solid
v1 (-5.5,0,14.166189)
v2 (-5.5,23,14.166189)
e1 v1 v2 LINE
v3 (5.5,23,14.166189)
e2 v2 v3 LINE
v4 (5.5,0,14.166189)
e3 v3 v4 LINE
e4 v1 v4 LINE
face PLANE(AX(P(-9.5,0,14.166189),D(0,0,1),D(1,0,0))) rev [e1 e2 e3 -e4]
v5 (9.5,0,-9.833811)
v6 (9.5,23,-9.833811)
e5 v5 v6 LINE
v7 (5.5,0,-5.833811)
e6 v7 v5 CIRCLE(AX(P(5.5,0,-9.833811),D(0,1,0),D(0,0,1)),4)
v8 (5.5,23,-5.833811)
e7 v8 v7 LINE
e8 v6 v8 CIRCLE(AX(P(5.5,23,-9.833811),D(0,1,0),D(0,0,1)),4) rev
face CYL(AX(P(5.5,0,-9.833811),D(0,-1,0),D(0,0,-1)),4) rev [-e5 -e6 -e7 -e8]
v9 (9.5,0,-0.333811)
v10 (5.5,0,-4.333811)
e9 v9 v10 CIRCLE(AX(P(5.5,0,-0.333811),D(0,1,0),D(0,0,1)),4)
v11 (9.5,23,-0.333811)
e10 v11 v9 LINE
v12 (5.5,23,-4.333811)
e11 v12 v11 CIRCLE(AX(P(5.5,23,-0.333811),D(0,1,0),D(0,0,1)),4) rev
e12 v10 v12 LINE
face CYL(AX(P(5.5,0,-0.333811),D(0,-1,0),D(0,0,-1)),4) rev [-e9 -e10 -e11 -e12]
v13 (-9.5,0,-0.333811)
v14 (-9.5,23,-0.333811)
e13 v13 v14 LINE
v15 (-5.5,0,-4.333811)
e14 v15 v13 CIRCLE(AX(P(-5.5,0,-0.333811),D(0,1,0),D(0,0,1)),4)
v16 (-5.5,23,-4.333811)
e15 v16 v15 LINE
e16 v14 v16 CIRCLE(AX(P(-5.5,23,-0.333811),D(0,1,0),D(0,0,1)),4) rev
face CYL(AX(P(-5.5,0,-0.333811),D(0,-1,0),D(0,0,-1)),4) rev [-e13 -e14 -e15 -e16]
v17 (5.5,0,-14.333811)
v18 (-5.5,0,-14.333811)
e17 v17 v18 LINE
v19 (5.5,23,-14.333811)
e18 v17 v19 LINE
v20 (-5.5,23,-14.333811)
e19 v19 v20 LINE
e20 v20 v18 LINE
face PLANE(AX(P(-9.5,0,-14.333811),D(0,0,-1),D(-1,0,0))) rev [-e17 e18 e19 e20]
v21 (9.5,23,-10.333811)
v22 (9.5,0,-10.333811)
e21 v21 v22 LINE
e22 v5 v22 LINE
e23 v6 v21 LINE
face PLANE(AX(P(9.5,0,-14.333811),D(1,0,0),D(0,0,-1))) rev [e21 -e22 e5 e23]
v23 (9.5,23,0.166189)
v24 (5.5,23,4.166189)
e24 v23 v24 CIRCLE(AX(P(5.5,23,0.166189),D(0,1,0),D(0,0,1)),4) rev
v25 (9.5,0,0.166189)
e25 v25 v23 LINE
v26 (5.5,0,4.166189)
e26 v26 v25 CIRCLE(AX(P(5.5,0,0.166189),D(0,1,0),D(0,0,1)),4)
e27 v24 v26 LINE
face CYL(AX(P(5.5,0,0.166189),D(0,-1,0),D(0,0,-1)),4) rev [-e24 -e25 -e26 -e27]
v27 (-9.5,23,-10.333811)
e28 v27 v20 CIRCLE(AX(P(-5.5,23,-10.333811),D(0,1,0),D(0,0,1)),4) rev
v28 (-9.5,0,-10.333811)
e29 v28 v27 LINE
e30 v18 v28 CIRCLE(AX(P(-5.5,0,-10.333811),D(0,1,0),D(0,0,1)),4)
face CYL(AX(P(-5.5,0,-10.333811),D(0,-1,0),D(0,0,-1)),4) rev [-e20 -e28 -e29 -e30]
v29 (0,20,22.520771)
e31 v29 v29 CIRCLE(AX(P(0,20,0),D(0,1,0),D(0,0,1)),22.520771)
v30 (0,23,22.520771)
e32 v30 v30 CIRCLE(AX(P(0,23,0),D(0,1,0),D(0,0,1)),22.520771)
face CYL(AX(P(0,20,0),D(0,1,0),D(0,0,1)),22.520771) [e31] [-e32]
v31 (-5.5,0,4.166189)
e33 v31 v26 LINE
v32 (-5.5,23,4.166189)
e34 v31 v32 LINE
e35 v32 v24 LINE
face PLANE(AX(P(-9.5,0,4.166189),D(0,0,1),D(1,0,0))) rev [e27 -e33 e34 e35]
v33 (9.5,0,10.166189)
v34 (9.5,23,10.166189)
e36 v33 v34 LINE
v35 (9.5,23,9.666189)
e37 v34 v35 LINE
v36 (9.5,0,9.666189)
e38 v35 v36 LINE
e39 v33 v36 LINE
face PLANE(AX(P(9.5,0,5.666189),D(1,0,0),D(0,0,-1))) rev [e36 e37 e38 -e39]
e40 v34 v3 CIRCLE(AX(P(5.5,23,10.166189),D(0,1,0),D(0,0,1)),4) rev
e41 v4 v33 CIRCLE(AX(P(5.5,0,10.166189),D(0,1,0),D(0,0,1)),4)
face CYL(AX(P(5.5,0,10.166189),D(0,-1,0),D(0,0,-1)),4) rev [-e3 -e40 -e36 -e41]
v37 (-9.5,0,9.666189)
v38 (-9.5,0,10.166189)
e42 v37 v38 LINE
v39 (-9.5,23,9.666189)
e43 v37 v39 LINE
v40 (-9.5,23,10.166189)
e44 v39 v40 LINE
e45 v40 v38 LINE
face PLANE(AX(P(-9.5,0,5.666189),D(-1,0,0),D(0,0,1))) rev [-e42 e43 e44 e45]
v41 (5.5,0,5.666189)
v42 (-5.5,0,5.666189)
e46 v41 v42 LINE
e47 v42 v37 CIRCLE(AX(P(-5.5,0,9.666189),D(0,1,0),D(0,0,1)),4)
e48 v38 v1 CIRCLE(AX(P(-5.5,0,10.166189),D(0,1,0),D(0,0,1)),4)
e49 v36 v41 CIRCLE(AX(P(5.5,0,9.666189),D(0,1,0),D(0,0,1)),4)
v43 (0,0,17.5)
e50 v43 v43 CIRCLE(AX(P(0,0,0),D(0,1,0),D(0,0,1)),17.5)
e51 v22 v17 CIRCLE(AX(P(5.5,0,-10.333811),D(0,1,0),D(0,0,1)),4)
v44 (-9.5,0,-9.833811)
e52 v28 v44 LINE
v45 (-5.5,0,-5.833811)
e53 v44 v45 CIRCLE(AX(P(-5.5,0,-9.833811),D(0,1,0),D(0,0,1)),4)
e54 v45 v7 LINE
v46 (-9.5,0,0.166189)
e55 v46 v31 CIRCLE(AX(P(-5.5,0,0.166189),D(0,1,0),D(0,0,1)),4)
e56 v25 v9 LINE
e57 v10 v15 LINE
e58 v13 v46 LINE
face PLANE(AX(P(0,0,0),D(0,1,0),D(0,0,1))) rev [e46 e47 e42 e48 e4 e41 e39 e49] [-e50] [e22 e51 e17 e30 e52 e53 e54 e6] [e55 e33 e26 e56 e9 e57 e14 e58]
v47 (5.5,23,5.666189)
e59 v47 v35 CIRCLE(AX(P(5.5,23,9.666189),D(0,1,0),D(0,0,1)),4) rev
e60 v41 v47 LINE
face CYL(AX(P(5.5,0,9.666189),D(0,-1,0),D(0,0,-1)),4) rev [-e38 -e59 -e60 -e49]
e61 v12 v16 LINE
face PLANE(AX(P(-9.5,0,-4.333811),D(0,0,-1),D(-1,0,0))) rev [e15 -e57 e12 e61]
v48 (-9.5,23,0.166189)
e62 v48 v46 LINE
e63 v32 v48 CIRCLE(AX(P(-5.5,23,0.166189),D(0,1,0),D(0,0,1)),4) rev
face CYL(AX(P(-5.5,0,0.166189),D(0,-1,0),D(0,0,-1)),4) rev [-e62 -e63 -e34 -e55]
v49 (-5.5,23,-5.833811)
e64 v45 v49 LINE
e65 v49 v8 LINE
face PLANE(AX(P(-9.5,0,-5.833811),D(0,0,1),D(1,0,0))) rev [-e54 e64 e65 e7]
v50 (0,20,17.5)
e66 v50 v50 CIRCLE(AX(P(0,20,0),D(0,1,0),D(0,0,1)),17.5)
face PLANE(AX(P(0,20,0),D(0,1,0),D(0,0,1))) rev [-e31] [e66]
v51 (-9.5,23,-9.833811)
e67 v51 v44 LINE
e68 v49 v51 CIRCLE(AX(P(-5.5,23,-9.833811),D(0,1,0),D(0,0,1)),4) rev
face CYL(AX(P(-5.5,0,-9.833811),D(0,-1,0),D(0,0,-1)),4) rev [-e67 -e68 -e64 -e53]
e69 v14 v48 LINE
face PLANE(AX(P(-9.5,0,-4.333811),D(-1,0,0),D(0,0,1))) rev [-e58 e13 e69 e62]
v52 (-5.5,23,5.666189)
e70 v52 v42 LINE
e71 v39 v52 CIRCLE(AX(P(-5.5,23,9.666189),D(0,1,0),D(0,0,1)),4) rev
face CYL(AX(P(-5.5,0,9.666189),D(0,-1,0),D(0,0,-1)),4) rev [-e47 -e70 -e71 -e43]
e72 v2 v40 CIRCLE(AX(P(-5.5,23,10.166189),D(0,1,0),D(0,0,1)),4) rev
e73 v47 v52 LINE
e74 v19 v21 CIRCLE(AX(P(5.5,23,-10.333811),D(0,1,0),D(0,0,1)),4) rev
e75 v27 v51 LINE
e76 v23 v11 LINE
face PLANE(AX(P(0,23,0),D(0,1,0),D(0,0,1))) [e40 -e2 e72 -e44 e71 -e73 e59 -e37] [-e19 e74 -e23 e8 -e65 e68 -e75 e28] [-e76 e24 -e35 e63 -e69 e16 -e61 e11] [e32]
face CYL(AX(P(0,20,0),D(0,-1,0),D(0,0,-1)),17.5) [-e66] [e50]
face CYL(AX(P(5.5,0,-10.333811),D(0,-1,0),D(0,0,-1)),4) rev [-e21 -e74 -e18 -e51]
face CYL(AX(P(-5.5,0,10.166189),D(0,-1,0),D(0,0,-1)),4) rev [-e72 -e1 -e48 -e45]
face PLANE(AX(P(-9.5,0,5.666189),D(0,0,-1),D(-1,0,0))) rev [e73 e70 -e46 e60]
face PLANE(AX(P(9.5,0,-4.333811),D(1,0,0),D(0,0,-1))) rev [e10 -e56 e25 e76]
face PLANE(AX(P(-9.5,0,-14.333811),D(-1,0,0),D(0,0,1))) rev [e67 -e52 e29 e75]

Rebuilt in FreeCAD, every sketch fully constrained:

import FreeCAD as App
import Part
import Sketcher
from FreeCAD import Vector
Q = App.Units.Quantity


def edges_at(feature, points):
    """Names of the edges that pass closest to the given points."""
    edges = feature.Shape.Edges
    near = lambda p: min(range(len(edges)), key=lambda i: edges[i].distToShape(Part.Vertex(*p))[0])
    return sorted({f"Edge{near(p) + 1}" for p in points})

doc = App.newDocument("Part")
body = doc.addObject("PartDesign::Body", "Body")

# Sketch on XZ plane
sketch1 = body.newObject("Sketcher::SketchObject", "Sketch")
sketch1.AttachmentSupport = (doc.getObject("XZ_Plane"), [""])
sketch1.MapMode = "FlatFace"
sketch1.addGeometry(Part.Circle(Vector(0, 0, 0), Vector(0, 0, 1), 18), False)
sketch1.addConstraint(Sketcher.Constraint("Coincident", 0, 3, -1, 1))
sketch1.addConstraint(Sketcher.Constraint("Diameter", 0, Q("35 mm")))
pad1 = body.newObject("PartDesign::Pad", "Pad")
pad1.Profile = sketch1
pad1.Length = 20
pad1.Reversed = True

# Sketch on XZ plane
sketch2 = body.newObject("Sketcher::SketchObject", "Sketch001")
sketch2.AttachmentSupport = (doc.getObject("XZ_Plane"), [""])
sketch2.MapMode = "FlatFace"
sketch2.AttachmentOffset = App.Placement(Vector(0, 0, -20), App.Rotation())
sketch2.addGeometry(Part.Circle(Vector(0, 0, 0), Vector(0, 0, 1), 22), False)
sketch2.addConstraint(Sketcher.Constraint("Coincident", 0, 3, -1, 1))
sketch2.addConstraint(Sketcher.Constraint("Diameter", 0, Q("43 mm")))
pad2 = body.newObject("PartDesign::Pad", "Pad001")
pad2.Profile = sketch2
pad2.Length = 3
pad2.Reversed = True

# Sketch on XZ plane
sketch3 = body.newObject("Sketcher::SketchObject", "Sketch002")
sketch3.AttachmentSupport = (doc.getObject("XZ_Plane"), [""])
sketch3.MapMode = "FlatFace"
sketch3.AttachmentOffset = App.Placement(Vector(0, 0, -23), App.Rotation())
sketch3.addGeometry(Part.LineSegment(Vector(-10, -4, 0), Vector(-10, 4, 0)), False)
sketch3.addGeometry(Part.LineSegment(Vector(-10, 4, 0), Vector(10, 4, 0)), False)
sketch3.addGeometry(Part.LineSegment(Vector(10, 4, 0), Vector(10, -4, 0)), False)
sketch3.addGeometry(Part.LineSegment(Vector(10, -4, 0), Vector(-10, -4, 0)), False)
sketch3.addGeometry(Part.LineSegment(Vector(-10, -14, 0), Vector(-10, -6, 0)), False)
sketch3.addGeometry(Part.LineSegment(Vector(-10, -6, 0), Vector(10, -6, 0)), False)
sketch3.addGeometry(Part.LineSegment(Vector(10, -6, 0), Vector(10, -14, 0)), False)
sketch3.addGeometry(Part.LineSegment(Vector(10, -14, 0), Vector(-10, -14, 0)), False)
sketch3.addGeometry(Part.LineSegment(Vector(-10, 6, 0), Vector(-10, 14, 0)), False)
sketch3.addGeometry(Part.LineSegment(Vector(-10, 14, 0), Vector(10, 14, 0)), False)
sketch3.addGeometry(Part.LineSegment(Vector(10, 14, 0), Vector(10, 6, 0)), False)
sketch3.addGeometry(Part.LineSegment(Vector(10, 6, 0), Vector(-10, 6, 0)), False)
sketch3.addConstraint(Sketcher.Constraint("Coincident", 0, 2, 1, 1))
sketch3.addConstraint(Sketcher.Constraint("Coincident", 1, 2, 2, 1))
sketch3.addConstraint(Sketcher.Constraint("Coincident", 2, 2, 3, 1))
sketch3.addConstraint(Sketcher.Constraint("Coincident", 3, 2, 0, 1))
sketch3.addConstraint(Sketcher.Constraint("Coincident", 4, 2, 5, 1))
sketch3.addConstraint(Sketcher.Constraint("Coincident", 5, 2, 6, 1))
sketch3.addConstraint(Sketcher.Constraint("Coincident", 6, 2, 7, 1))
sketch3.addConstraint(Sketcher.Constraint("Coincident", 7, 2, 4, 1))
sketch3.addConstraint(Sketcher.Constraint("Coincident", 8, 2, 9, 1))
sketch3.addConstraint(Sketcher.Constraint("Coincident", 9, 2, 10, 1))
sketch3.addConstraint(Sketcher.Constraint("Coincident", 10, 2, 11, 1))
sketch3.addConstraint(Sketcher.Constraint("Coincident", 11, 2, 8, 1))
sketch3.addConstraint(Sketcher.Constraint("Vertical", 0))
sketch3.addConstraint(Sketcher.Constraint("Horizontal", 1))
sketch3.addConstraint(Sketcher.Constraint("Vertical", 2))
sketch3.addConstraint(Sketcher.Constraint("Horizontal", 3))
sketch3.addConstraint(Sketcher.Constraint("Vertical", 4))
sketch3.addConstraint(Sketcher.Constraint("Horizontal", 5))
sketch3.addConstraint(Sketcher.Constraint("Vertical", 6))
sketch3.addConstraint(Sketcher.Constraint("Horizontal", 7))
sketch3.addConstraint(Sketcher.Constraint("Vertical", 8))
sketch3.addConstraint(Sketcher.Constraint("Horizontal", 9))
sketch3.addConstraint(Sketcher.Constraint("Vertical", 10))
sketch3.addConstraint(Sketcher.Constraint("Horizontal", 11))
sketch3.addConstraint(Sketcher.Constraint("Vertical", 3, 2, 4, 2))
sketch3.addConstraint(Sketcher.Constraint("Vertical", 2, 2, 5, 2))
sketch3.addConstraint(Sketcher.Constraint("Vertical", 7, 2, 8, 2))
sketch3.addConstraint(Sketcher.Constraint("Vertical", 6, 2, 9, 2))
sketch3.addConstraint(Sketcher.Constraint("Equal", 2, 4))
sketch3.addConstraint(Sketcher.Constraint("Equal", 6, 8))
sketch3.addConstraint(Sketcher.Constraint("DistanceX", 1, 1, 1, 2, Q("19 mm")))
sketch3.addConstraint(Sketcher.Constraint("DistanceY", 0, 1, 0, 2, Q("8.5 mm")))
sketch3.addConstraint(Sketcher.Constraint("DistanceY", 4, 2, 0, 2, Q("10 mm")))
sketch3.addConstraint(Sketcher.Constraint("DistanceY", 0, 2, 8, 2, Q("10 mm")))
sketch3.addConstraint(Sketcher.Constraint("DistanceX", 0, 2, -1, 1, Q("9.5 mm")))
sketch3.addConstraint(Sketcher.Constraint("DistanceY", -1, 1, 0, 2, Q("4.166189 mm")))
pocket1 = body.newObject("PartDesign::Pocket", "Pocket")
pocket1.Profile = sketch3
pocket1.Length = 23
pocket1.Reversed = True
doc.recompute()

fillet = body.newObject("PartDesign::Fillet", "Fillet")
fillet.Base = (pocket1, edges_at(pocket1, [
    (9.5, 11.5, 4.166),
    (-9.5, 11.5, 4.166),
    (-9.5, 11.5, -4.334),
    (9.5, 11.5, -4.334),
    (9.5, 11.5, 14.166),
    (-9.5, 11.5, 14.166),
    (-9.5, 11.5, 5.666),
    (9.5, 11.5, 5.666),
]))
fillet.Radius = 4
doc.recompute()

fillet2 = body.newObject("PartDesign::Fillet", "Fillet001")
fillet2.Base = (fillet, edges_at(fillet, [
    (9.5, 11.5, -14.334),
    (9.5, 11.5, -5.834),
    (-9.5, 11.5, -5.834),
    (-9.5, 11.5, -14.334),
]))
fillet2.Radius = 4

# Sketch on XZ plane
sketch4 = body.newObject("Sketcher::SketchObject", "Sketch003")
sketch4.AttachmentSupport = (doc.getObject("XZ_Plane"), [""])
sketch4.MapMode = "FlatFace"
sketch4.AttachmentOffset = App.Placement(Vector(0, 0, -20), App.Rotation())
sketch4.addGeometry(Part.Circle(Vector(0, 0, 0), Vector(0, 0, 1), 23), False)
sketch4.addGeometry(Part.Circle(Vector(0, 0, 0), Vector(0, 0, 1), 22), False)
sketch4.addConstraint(Sketcher.Constraint("Coincident", 0, 3, -1, 1))
sketch4.addConstraint(Sketcher.Constraint("Coincident", 1, 3, -1, 1))
sketch4.addConstraint(Sketcher.Constraint("Diameter", 1, Q("43 mm")))
sketch4.addConstraint(Sketcher.Constraint("Diameter", 0, Q("45.041542 mm")))
pad3 = body.newObject("PartDesign::Pad", "Pad002")
pad3.Profile = sketch4
pad3.Length = 3
pad3.Reversed = True

doc.recompute()
